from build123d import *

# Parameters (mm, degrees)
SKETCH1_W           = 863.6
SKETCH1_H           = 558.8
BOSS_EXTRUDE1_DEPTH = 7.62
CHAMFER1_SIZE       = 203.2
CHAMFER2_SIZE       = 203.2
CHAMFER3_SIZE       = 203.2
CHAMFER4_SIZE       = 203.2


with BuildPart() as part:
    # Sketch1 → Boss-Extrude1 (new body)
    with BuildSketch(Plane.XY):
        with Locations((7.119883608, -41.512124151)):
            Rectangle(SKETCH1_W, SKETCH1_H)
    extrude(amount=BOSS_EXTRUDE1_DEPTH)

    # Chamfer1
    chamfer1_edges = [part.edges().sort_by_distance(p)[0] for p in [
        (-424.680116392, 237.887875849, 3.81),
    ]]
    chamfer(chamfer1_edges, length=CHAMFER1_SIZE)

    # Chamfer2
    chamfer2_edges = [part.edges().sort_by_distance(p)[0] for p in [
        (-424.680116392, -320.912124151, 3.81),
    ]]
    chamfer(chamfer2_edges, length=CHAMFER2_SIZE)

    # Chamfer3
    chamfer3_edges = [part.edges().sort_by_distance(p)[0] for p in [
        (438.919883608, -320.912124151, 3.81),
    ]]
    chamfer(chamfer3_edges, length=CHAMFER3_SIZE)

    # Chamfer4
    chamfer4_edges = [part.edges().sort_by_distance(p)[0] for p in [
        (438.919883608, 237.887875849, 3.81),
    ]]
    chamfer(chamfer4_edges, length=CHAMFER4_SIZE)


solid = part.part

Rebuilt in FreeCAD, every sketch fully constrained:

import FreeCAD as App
import Part
import Sketcher
from FreeCAD import Vector
Q = App.Units.Quantity


def edges_at(feature, points):
    """Names of the edges that pass closest to the given points."""
    edges = feature.Shape.Edges
    near = lambda p: min(range(len(edges)), key=lambda i: edges[i].distToShape(Part.Vertex(*p))[0])
    return sorted({f"Edge{near(p) + 1}" for p in points})


def add_polygon(sketch, points):
    """Adds a closed chain of lines whose ends are joined by coincident constraints."""
    first, n = sketch.GeometryCount, len(points)
    for a, b in zip(points, points[1:] + points[:1]):
        sketch.addGeometry(Part.LineSegment(App.Vector(*a, 0), App.Vector(*b, 0)), False)
    for i in range(n):
        sketch.addConstraint(Sketcher.Constraint("Coincident", first + i, 2, first + (i + 1) % n, 1))

doc = App.newDocument("Part")
body = doc.addObject("PartDesign::Body", "Body")

sketch1 = body.newObject("Sketcher::SketchObject", "Sketch")
sketch1.AttachmentSupport = (doc.getObject("XY_Plane"), [""])
sketch1.MapMode = "FlatFace"
add_polygon(sketch1, [(-424.680116, 237.887876), (-424.680116, -320.912124), (438.919884, -320.912124), (438.919884, 237.887876)])
sketch1.addConstraint(Sketcher.Constraint("Vertical", 0))
sketch1.addConstraint(Sketcher.Constraint("Horizontal", 1))
sketch1.addConstraint(Sketcher.Constraint("Vertical", 2))
sketch1.addConstraint(Sketcher.Constraint("Horizontal", 3))
sketch1.addConstraint(Sketcher.Constraint("DistanceX", 1, 1, 1, 2, Q("34 in")))
sketch1.addConstraint(Sketcher.Constraint("DistanceY", 0, 2, 0, 1, Q("22 in")))
sketch1.addConstraint(Sketcher.Constraint("DistanceX", 0, 2, -1, 1, Q("424.680116 mm")))
sketch1.addConstraint(Sketcher.Constraint("DistanceY", 0, 2, -1, 1, Q("320.912124 mm")))
pad1 = body.newObject("PartDesign::Pad", "Pad")
pad1.Profile = sketch1
pad1.Length = Q("0.3 in")
doc.recompute()

chamfer = body.newObject("PartDesign::Chamfer", "Chamfer")
chamfer.Base = (pad1, edges_at(pad1, [(-424.68, 237.888, 3.81)]))
chamfer.Size = Q("8 in")
doc.recompute()

chamfer2 = body.newObject("PartDesign::Chamfer", "Chamfer001")
chamfer2.Base = (chamfer, edges_at(chamfer, [(-424.68, -320.912, 3.81)]))
chamfer2.Size = Q("8 in")
doc.recompute()

chamfer3 = body.newObject("PartDesign::Chamfer", "Chamfer002")
chamfer3.Base = (chamfer2, edges_at(chamfer2, [(438.92, -320.912, 3.81)]))
chamfer3.Size = Q("8 in")
doc.recompute()

chamfer4 = body.newObject("PartDesign::Chamfer", "Chamfer003")
chamfer4.Base = (chamfer3, edges_at(chamfer3, [(438.92, 237.888, 3.81)]))
chamfer4.Size = Q("8 in")

doc.recompute()
